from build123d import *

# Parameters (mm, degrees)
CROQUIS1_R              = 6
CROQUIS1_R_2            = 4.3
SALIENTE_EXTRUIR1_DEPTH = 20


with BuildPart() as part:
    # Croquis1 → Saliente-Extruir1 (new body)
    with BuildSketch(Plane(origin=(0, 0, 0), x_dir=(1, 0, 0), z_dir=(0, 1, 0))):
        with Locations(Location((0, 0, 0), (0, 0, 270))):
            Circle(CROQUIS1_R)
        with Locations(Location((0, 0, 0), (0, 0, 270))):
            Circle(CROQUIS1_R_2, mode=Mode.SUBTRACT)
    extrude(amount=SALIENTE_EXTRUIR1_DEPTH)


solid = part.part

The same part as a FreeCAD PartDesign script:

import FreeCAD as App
import Part
import Sketcher
Q = App.Units.Quantity

doc = App.newDocument("Part")
body = doc.addObject("PartDesign::Body", "Body")

sketch1 = body.newObject("Sketcher::SketchObject", "Sketch")
sketch1.AttachmentSupport = (doc.getObject("XZ_Plane"), [""])
sketch1.MapMode = "FlatFace"
sketch1.addGeometry([
    Part.Circle(App.Vector(0, 0, 0), App.Vector(0, 0, 1), 6),
    Part.Circle(App.Vector(0, 0, 0), App.Vector(0, 0, 1), 4.3),
], False)
sketch1.addConstraint([
    Sketcher.Constraint("Coincident", 0, 3, -1, 1),
    Sketcher.Constraint("Coincident", 1, 3, -1, 1),
    Sketcher.Constraint("Diameter", 0, Q("12 mm")),
    Sketcher.Constraint("Diameter", 1, Q("8.6 mm")),
])
pad1 = body.newObject("PartDesign::Pad", "Pad")
pad1.Profile = sketch1
pad1.Length = 20
pad1.Reversed = True

doc.recompute()
